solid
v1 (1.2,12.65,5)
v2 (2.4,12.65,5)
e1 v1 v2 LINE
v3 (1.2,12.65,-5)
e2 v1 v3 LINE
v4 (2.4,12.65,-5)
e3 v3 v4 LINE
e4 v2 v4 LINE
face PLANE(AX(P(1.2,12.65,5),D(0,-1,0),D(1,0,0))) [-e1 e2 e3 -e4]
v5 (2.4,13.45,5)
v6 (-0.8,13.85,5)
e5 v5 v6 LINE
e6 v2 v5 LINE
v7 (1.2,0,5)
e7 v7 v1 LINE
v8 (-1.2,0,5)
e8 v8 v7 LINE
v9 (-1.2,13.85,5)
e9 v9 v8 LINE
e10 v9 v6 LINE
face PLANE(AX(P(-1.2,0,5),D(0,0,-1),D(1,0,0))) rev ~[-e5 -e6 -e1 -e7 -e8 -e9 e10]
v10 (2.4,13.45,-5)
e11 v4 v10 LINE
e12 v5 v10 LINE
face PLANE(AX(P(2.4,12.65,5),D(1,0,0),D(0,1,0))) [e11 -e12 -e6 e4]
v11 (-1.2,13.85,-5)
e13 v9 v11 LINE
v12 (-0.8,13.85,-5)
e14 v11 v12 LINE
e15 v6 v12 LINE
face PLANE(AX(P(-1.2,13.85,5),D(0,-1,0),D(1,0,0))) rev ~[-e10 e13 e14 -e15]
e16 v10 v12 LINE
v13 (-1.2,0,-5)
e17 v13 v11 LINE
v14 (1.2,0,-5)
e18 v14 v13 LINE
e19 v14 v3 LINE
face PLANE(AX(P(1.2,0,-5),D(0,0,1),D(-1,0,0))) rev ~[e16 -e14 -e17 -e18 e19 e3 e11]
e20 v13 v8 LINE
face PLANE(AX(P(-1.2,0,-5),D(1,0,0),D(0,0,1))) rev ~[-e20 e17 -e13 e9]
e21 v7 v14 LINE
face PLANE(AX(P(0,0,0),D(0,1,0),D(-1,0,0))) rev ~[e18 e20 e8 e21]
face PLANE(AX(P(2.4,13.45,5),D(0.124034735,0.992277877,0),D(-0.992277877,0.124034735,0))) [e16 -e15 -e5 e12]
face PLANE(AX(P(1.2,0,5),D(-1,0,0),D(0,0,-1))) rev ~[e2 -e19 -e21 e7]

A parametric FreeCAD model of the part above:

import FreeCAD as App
import Part
import Sketcher
Q = App.Units.Quantity


def add_polygon(sketch, points):
    """Adds a closed chain of lines whose ends are joined by coincident constraints."""
    first, n = sketch.GeometryCount, len(points)
    for a, b in zip(points, points[1:] + points[:1]):
        sketch.addGeometry(Part.LineSegment(App.Vector(*a, 0), App.Vector(*b, 0)), False)
    for i in range(n):
        sketch.addConstraint(Sketcher.Constraint("Coincident", first + i, 2, first + (i + 1) % n, 1))

doc = App.newDocument("Part")
body = doc.addObject("PartDesign::Body", "Body")

# Sketch on XZ plane
sketch1 = doc.addObject("Sketcher::SketchObject", "Sketch")
body.addObject(sketch1)
sketch1.AttachmentSupport = (doc.XZ_Plane, [""])
sketch1.MapMode = "FlatFace"
add_polygon(sketch1, [(1.2, 5), (1.2, -5), (-1.2, -5), (-1.2, 5)])  # lines 0-3
sketch1.addConstraint(Sketcher.Constraint("Vertical", 0))
sketch1.addConstraint(Sketcher.Constraint("Horizontal", 1))
sketch1.addConstraint(Sketcher.Constraint("Vertical", 2))
sketch1.addConstraint(Sketcher.Constraint("Horizontal", 3))
sketch1.addConstraint(Sketcher.Constraint("Symmetric", 0, 2, 2, 2, -1, 1))
sketch1.addConstraint(Sketcher.Constraint("DistanceY", 0, 2, 0, 1, Q("10 mm")))
sketch1.addConstraint(Sketcher.Constraint("DistanceX", 1, 2, 1, 1, Q("2.4 mm")))
pad1 = doc.addObject("PartDesign::Pad", "Pad")
body.addObject(pad1)
pad1.Profile = sketch1
pad1.Length = 12.65
pad1.Reversed = True

# Sketch on XY plane
sketch2 = doc.addObject("Sketcher::SketchObject", "Sketch001")
body.addObject(sketch2)
sketch2.AttachmentSupport = (doc.XY_Plane, [""])
sketch2.MapMode = "FlatFace"
sketch2.AttachmentOffset = App.Placement(App.Vector(0, 0, 5), App.Rotation())
add_polygon(sketch2, [(-1.2, 12.65), (2.4, 12.65), (2.4, 13.45), (-0.8, 13.85), (-1.2, 13.85)])  # lines 0-4
sketch2.addConstraint(Sketcher.Constraint("Horizontal", 0))
sketch2.addConstraint(Sketcher.Constraint("Vertical", 1))
sketch2.addConstraint(Sketcher.Constraint("Horizontal", 3))
sketch2.addConstraint(Sketcher.Constraint("Vertical", 4))
sketch2.addConstraint(Sketcher.Constraint("DistanceX", 3, 2, 3, 1, Q("0.4 mm")))
sketch2.addConstraint(Sketcher.Constraint("DistanceY", 1, 1, 1, 2, Q("0.8 mm")))
sketch2.addConstraint(Sketcher.Constraint("DistanceY", 4, 2, 4, 1, Q("1.2 mm")))
sketch2.addConstraint(Sketcher.Constraint("DistanceX", 2, 2, -1, 1, Q("0.8 mm")))
sketch2.addConstraint(Sketcher.Constraint("DistanceX", 0, 1, 0, 2, Q("3.6 mm")))
sketch2.addConstraint(Sketcher.Constraint("DistanceY", -1, 1, 0, 2, Q("12.65 mm")))
pad2 = doc.addObject("PartDesign::Pad", "Pad001")
body.addObject(pad2)
pad2.Profile = sketch2
pad2.Length = 10
pad2.Reversed = True

doc.recompute()
